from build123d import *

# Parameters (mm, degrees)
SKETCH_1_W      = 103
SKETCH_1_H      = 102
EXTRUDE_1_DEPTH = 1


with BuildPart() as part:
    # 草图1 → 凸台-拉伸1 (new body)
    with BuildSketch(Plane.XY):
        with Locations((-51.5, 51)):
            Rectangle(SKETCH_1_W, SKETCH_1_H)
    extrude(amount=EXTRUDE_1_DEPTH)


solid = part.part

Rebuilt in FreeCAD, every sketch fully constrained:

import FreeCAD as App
import Part
import Sketcher

doc = App.newDocument("Part")
body = doc.addObject("PartDesign::Body", "Body")

sketch1 = body.newObject("Sketcher::SketchObject", "Sketch")
sketch1.AttachmentSupport = (doc.getObject("XY_Plane"), [""])
sketch1.MapMode = "FlatFace"
sketch1.addGeometry([
    Part.LineSegment(App.Vector(-103, 102, 0), App.Vector(-103, 0, 0)),
    Part.LineSegment(App.Vector(-103, 0, 0), App.Vector(0, 0, 0)),
    Part.LineSegment(App.Vector(0, 0, 0), App.Vector(0, 102, 0)),
    Part.LineSegment(App.Vector(0, 102, 0), App.Vector(-103, 102, 0)),
], False)
sketch1.addConstraint([
    Sketcher.Constraint("Coincident", 0, 2, 1, 1),
    Sketcher.Constraint("Coincident", 1, 2, 2, 1),
    Sketcher.Constraint("Coincident", 2, 2, 3, 1),
    Sketcher.Constraint("Coincident", 3, 2, 0, 1),
    Sketcher.Constraint("Vertical", 0),
    Sketcher.Constraint("Horizontal", 1),
    Sketcher.Constraint("Vertical", 2),
    Sketcher.Constraint("Horizontal", 3),
    Sketcher.Constraint("Coincident", 1, 2, -1, 1),
    Sketcher.Constraint("DistanceX", 1, 1, 1, 2, 103.0),
    Sketcher.Constraint("DistanceY", 0, 2, 0, 1, 102.0),
])
pad1 = body.newObject("PartDesign::Pad", "Pad")
pad1.Profile = sketch1
pad1.Length = 1

doc.recompute()
